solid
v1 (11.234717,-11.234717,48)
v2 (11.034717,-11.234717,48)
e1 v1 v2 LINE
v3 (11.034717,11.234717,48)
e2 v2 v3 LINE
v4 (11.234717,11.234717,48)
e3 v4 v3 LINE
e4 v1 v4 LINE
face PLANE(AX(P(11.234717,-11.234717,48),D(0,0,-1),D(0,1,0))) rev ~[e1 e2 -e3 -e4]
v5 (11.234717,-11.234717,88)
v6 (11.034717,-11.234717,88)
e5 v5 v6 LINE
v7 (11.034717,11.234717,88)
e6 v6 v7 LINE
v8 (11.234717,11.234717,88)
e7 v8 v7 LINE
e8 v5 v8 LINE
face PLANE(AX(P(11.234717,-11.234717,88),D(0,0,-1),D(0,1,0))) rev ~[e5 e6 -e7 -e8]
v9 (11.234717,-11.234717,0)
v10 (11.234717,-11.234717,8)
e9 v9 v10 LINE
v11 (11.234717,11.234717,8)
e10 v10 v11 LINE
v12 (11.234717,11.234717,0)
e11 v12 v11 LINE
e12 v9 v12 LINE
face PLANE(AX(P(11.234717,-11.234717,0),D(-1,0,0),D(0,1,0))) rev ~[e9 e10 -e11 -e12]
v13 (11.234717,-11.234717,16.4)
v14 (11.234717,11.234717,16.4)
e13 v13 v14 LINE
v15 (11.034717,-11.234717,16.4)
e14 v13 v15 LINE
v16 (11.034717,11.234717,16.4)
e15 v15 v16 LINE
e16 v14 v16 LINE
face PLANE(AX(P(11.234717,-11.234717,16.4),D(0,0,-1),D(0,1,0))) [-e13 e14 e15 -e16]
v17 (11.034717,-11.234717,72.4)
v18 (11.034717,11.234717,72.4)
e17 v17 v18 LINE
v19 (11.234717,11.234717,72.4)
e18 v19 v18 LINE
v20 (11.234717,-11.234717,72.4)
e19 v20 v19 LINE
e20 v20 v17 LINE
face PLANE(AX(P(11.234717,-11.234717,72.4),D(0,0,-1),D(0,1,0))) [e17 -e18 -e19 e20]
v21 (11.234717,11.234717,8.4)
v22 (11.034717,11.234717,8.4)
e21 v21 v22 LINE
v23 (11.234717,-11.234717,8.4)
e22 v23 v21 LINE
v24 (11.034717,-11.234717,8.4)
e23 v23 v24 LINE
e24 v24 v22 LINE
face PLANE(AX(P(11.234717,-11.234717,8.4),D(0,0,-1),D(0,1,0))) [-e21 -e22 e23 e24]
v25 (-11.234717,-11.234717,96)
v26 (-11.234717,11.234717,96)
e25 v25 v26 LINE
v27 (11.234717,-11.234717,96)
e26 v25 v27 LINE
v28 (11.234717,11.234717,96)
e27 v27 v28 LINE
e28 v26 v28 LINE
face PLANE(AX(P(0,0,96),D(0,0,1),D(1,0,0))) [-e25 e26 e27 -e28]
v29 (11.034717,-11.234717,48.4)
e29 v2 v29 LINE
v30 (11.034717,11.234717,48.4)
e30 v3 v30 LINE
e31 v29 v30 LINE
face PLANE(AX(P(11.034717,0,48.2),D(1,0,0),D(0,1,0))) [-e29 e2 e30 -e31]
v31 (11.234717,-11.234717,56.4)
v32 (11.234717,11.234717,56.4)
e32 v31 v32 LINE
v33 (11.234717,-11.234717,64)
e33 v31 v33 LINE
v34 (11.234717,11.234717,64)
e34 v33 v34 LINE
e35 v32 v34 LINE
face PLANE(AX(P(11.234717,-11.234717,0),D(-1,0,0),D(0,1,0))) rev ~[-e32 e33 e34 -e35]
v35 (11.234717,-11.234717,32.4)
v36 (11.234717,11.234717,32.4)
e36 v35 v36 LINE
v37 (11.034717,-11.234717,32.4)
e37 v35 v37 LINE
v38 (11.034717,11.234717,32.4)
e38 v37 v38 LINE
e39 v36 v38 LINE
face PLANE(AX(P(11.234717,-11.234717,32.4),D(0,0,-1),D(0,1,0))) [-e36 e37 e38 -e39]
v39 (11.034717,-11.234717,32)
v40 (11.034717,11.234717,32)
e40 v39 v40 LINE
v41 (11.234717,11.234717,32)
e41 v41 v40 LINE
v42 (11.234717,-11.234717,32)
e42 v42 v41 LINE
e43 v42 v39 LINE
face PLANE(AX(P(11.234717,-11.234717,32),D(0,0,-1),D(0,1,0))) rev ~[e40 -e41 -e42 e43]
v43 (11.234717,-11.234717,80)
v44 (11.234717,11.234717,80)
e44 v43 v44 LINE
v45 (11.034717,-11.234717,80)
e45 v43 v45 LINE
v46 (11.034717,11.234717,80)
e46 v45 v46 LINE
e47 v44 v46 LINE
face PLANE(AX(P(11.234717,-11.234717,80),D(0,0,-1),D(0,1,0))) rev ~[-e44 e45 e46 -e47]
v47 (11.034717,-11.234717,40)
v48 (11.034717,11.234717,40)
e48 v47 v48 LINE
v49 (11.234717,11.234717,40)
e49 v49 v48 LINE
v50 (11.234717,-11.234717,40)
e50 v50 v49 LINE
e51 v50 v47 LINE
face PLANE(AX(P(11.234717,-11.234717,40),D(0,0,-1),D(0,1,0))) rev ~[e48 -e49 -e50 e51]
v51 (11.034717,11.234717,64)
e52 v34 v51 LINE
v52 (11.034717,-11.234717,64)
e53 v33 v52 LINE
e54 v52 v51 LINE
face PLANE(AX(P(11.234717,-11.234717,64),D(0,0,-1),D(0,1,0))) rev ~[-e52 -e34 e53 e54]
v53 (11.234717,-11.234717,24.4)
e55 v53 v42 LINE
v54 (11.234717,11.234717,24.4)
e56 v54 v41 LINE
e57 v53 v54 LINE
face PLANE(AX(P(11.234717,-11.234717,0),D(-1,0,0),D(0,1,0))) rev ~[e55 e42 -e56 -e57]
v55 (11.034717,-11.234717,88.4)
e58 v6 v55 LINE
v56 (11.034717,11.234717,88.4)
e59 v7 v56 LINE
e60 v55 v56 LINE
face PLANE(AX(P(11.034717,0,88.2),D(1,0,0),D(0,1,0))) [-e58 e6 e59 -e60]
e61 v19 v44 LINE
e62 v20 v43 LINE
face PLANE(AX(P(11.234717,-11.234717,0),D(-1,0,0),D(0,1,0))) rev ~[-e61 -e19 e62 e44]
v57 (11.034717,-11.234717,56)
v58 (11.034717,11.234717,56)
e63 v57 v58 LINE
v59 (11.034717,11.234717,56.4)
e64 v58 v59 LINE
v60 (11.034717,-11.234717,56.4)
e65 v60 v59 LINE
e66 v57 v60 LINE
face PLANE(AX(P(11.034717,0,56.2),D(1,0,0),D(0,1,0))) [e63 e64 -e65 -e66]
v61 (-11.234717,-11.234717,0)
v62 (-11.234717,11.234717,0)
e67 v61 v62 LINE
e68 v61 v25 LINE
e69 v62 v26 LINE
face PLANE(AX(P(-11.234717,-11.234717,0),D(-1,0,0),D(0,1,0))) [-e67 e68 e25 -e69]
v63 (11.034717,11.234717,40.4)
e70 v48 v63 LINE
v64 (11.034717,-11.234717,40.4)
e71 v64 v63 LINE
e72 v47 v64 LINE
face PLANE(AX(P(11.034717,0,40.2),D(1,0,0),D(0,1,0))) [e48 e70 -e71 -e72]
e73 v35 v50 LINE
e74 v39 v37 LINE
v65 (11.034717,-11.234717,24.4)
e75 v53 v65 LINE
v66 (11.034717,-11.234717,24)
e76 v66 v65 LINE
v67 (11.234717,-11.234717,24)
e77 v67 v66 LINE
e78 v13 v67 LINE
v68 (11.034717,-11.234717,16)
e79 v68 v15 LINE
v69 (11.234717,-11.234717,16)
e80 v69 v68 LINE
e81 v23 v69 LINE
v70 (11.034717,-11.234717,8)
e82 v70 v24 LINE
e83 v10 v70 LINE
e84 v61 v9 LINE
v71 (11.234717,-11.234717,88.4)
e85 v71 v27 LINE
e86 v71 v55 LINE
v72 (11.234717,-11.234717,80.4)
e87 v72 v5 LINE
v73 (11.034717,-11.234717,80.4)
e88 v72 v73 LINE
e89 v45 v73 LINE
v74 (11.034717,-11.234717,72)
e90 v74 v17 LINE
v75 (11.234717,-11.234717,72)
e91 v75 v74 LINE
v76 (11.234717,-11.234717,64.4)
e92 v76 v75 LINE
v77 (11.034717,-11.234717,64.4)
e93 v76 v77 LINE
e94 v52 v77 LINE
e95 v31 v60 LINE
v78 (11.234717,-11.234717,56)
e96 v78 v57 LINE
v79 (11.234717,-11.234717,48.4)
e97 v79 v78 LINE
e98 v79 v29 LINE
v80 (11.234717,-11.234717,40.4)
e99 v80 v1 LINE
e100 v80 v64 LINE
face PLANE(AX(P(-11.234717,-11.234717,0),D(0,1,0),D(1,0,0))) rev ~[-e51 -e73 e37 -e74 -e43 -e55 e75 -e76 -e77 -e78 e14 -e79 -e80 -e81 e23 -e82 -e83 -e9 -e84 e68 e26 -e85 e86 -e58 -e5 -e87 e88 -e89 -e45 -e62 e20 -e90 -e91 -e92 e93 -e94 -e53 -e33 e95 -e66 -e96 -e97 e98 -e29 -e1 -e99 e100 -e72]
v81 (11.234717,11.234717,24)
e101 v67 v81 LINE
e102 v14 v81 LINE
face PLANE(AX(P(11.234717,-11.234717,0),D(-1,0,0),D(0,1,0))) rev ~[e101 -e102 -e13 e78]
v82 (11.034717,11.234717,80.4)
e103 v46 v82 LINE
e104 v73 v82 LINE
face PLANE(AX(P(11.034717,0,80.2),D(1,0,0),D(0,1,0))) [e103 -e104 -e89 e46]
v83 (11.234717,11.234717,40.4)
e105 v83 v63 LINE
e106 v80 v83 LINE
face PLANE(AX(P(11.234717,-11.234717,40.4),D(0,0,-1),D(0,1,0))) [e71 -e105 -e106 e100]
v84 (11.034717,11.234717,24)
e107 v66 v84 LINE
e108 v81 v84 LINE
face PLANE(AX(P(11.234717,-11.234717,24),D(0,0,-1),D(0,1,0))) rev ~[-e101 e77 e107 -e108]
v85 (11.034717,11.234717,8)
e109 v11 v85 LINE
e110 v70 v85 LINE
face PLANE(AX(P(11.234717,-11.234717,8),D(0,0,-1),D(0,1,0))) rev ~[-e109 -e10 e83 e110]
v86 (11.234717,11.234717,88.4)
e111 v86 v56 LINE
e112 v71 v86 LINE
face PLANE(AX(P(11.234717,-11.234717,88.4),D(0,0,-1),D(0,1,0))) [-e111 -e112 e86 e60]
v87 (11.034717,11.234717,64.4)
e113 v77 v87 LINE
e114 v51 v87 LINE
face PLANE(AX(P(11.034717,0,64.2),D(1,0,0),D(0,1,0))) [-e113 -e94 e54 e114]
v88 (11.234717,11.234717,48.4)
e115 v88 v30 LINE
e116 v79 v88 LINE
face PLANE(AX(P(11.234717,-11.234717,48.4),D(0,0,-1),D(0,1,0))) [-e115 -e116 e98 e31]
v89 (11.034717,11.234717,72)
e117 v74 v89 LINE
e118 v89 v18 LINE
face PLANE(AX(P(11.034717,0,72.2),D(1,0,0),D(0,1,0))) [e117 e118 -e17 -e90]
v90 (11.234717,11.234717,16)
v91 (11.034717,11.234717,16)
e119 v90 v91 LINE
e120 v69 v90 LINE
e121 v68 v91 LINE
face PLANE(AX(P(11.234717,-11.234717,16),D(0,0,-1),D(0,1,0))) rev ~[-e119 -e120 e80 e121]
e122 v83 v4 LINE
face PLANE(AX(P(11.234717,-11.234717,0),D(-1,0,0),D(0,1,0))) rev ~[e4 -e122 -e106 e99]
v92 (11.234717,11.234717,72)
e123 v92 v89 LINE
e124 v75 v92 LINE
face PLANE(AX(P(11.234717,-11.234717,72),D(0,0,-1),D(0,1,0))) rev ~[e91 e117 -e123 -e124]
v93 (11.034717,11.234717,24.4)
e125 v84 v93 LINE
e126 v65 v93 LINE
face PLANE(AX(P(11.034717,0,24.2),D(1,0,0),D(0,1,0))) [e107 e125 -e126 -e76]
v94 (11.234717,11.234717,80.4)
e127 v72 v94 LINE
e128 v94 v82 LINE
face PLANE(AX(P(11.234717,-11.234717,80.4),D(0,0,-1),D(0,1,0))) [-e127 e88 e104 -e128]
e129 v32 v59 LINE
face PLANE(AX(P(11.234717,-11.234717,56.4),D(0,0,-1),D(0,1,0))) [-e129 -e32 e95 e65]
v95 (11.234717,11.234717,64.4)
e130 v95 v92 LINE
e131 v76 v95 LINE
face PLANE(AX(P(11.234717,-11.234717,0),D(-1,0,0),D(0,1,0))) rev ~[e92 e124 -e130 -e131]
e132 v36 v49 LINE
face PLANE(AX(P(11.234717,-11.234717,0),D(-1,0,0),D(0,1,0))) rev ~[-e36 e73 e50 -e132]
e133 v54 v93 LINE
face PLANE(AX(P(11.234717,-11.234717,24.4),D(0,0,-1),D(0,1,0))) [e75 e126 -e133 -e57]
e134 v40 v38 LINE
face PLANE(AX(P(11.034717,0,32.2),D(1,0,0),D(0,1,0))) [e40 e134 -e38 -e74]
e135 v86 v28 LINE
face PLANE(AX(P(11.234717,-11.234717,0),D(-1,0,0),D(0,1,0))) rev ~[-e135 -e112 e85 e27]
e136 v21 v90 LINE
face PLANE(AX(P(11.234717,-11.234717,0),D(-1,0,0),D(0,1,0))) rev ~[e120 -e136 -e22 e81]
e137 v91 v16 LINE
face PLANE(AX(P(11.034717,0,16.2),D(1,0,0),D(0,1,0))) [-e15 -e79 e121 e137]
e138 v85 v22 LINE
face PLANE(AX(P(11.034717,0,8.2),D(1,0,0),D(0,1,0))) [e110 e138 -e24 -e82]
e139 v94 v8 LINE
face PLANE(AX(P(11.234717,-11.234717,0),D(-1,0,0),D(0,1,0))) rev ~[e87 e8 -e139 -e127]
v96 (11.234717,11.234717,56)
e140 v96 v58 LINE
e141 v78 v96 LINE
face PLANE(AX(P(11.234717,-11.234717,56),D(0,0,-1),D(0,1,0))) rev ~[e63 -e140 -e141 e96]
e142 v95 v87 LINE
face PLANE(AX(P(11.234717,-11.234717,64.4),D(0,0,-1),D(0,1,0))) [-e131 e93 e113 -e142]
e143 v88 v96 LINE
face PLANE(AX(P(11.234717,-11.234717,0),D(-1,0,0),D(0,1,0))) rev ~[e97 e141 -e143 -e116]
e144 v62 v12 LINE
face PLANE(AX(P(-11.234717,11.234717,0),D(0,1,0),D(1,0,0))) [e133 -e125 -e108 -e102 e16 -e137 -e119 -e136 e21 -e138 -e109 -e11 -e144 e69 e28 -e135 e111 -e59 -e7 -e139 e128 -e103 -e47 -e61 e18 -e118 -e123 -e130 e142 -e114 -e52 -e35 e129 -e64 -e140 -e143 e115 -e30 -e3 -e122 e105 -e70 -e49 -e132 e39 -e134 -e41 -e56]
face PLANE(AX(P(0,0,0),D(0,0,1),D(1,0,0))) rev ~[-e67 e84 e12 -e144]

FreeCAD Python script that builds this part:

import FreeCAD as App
import Part
import Sketcher
from FreeCAD import Vector


def add_polygon(sketch, points):
    """Adds a closed chain of lines whose ends are joined by coincident constraints."""
    first, n = sketch.GeometryCount, len(points)
    for a, b in zip(points, points[1:] + points[:1]):
        sketch.addGeometry(Part.LineSegment(App.Vector(*a, 0), App.Vector(*b, 0)), False)
    for i in range(n):
        sketch.addConstraint(Sketcher.Constraint("Coincident", first + i, 2, first + (i + 1) % n, 1))

doc = App.newDocument("Part")
body = doc.addObject("PartDesign::Body", "Body")

# Sketch on XY plane
sketch1 = body.newObject("Sketcher::SketchObject", "Sketch")
sketch1.AttachmentSupport = (doc.getObject("XY_Plane"), [""])
sketch1.MapMode = "FlatFace"
add_polygon(sketch1, [(-11.234717, 11.234717), (-11.234717, -11.234717), (11.234717, -11.234717), (11.234717, 11.234717)])  # lines 0-3
sketch1.addConstraint([
    Sketcher.Constraint("Vertical", 0),
    Sketcher.Constraint("Horizontal", 1),
    Sketcher.Constraint("Vertical", 2),
    Sketcher.Constraint("Horizontal", 3),
    Sketcher.Constraint("Symmetric", 0, 2, 2, 2, -1, 1),
    Sketcher.Constraint("Equal", 3, 0),
    Sketcher.Constraint("DistanceX", 1, 1, 1, 2, 22.469434),
])
pad1 = body.newObject("PartDesign::Pad", "Pad")
pad1.Profile = sketch1
pad1.Length = 96

# Sketch on YZ plane
sketch2 = body.newObject("Sketcher::SketchObject", "Sketch001")
sketch2.AttachmentSupport = (doc.getObject("YZ_Plane"), [""])
sketch2.MapMode = "FlatFace"
sketch2.AttachmentOffset = App.Placement(Vector(0, 0, 11.234717), App.Rotation())
add_polygon(sketch2, [(-11.234717, 88.4), (-11.234717, 88), (11.234717, 88), (11.234717, 88.4)])  # lines 0-3
add_polygon(sketch2, [(-11.234717, 80.4), (-11.234717, 80), (11.234717, 80), (11.234717, 80.4)])  # lines 4-7
add_polygon(sketch2, [(-11.234717, 72.4), (-11.234717, 72), (11.234717, 72), (11.234717, 72.4)])  # lines 8-11
add_polygon(sketch2, [(-11.234717, 64.4), (-11.234717, 64), (11.234717, 64), (11.234717, 64.4)])  # lines 12-15
add_polygon(sketch2, [(-11.234717, 56.4), (-11.234717, 56), (11.234717, 56), (11.234717, 56.4)])  # lines 16-19
add_polygon(sketch2, [(-11.234717, 48.4), (-11.234717, 48), (11.234717, 48), (11.234717, 48.4)])  # lines 20-23
add_polygon(sketch2, [(-11.234717, 40.4), (-11.234717, 40), (11.234717, 40), (11.234717, 40.4)])  # lines 24-27
add_polygon(sketch2, [(-11.234717, 32.4), (-11.234717, 32), (11.234717, 32), (11.234717, 32.4)])  # lines 28-31
add_polygon(sketch2, [(-11.234717, 24.4), (-11.234717, 24), (11.234717, 24), (11.234717, 24.4)])  # lines 32-35
add_polygon(sketch2, [(-11.234717, 16.4), (-11.234717, 16), (11.234717, 16), (11.234717, 16.4)])  # lines 36-39
add_polygon(sketch2, [(-11.234717, 8.4), (-11.234717, 8), (11.234717, 8), (11.234717, 8.4)])  # lines 40-43
sketch2.addConstraint([
    Sketcher.Constraint("Vertical", 0),
    Sketcher.Constraint("Horizontal", 1),
    Sketcher.Constraint("Vertical", 2),
    Sketcher.Constraint("Horizontal", 3),
    Sketcher.Constraint("Vertical", 4),
    Sketcher.Constraint("Horizontal", 5),
    Sketcher.Constraint("Vertical", 6),
    Sketcher.Constraint("Horizontal", 7),
    Sketcher.Constraint("Vertical", 8),
    Sketcher.Constraint("Horizontal", 9),
    Sketcher.Constraint("Vertical", 10),
    Sketcher.Constraint("Horizontal", 11),
    Sketcher.Constraint("Vertical", 12),
    Sketcher.Constraint("Horizontal", 13),
    Sketcher.Constraint("Vertical", 14),
    Sketcher.Constraint("Horizontal", 15),
    Sketcher.Constraint("Vertical", 16),
    Sketcher.Constraint("Horizontal", 17),
    Sketcher.Constraint("Vertical", 18),
    Sketcher.Constraint("Horizontal", 19),
    Sketcher.Constraint("Vertical", 20),
    Sketcher.Constraint("Horizontal", 21),
    Sketcher.Constraint("Vertical", 22),
    Sketcher.Constraint("Horizontal", 23),
    Sketcher.Constraint("Vertical", 24),
    Sketcher.Constraint("Horizontal", 25),
    Sketcher.Constraint("Vertical", 26),
    Sketcher.Constraint("Horizontal", 27),
    Sketcher.Constraint("Vertical", 28),
    Sketcher.Constraint("Horizontal", 29),
    Sketcher.Constraint("Vertical", 30),
    Sketcher.Constraint("Horizontal", 31),
    Sketcher.Constraint("Vertical", 32),
    Sketcher.Constraint("Horizontal", 33),
    Sketcher.Constraint("Vertical", 34),
    Sketcher.Constraint("Horizontal", 35),
    Sketcher.Constraint("Vertical", 36),
    Sketcher.Constraint("Horizontal", 37),
    Sketcher.Constraint("Vertical", 38),
    Sketcher.Constraint("Horizontal", 39),
    Sketcher.Constraint("Vertical", 40),
    Sketcher.Constraint("Horizontal", 41),
    Sketcher.Constraint("Vertical", 42),
    Sketcher.Constraint("Horizontal", 43),
    Sketcher.Constraint("Vertical", 3, 2, 4, 2),
    Sketcher.Constraint("Vertical", 2, 2, 5, 2),
    Sketcher.Constraint("Vertical", 7, 2, 8, 2),
    Sketcher.Constraint("Vertical", 6, 2, 9, 2),
    Sketcher.Constraint("Vertical", 11, 2, 12, 2),
    Sketcher.Constraint("Vertical", 10, 2, 13, 2),
    Sketcher.Constraint("Vertical", 15, 2, 16, 2),
    Sketcher.Constraint("Vertical", 14, 2, 17, 2),
    Sketcher.Constraint("Vertical", 19, 2, 20, 2),
    Sketcher.Constraint("Vertical", 18, 2, 21, 2),
    Sketcher.Constraint("Vertical", 23, 2, 24, 2),
    Sketcher.Constraint("Vertical", 22, 2, 25, 2),
    Sketcher.Constraint("Vertical", 27, 2, 28, 2),
    Sketcher.Constraint("Vertical", 26, 2, 29, 2),
    Sketcher.Constraint("Vertical", 31, 2, 32, 2),
    Sketcher.Constraint("Vertical", 30, 2, 33, 2),
    Sketcher.Constraint("Vertical", 35, 2, 36, 2),
    Sketcher.Constraint("Vertical", 34, 2, 37, 2),
    Sketcher.Constraint("Vertical", 39, 2, 40, 2),
    Sketcher.Constraint("Vertical", 38, 2, 41, 2),
    Sketcher.Constraint("Equal", 2, 4),
    Sketcher.Constraint("Equal", 6, 8),
    Sketcher.Constraint("Equal", 10, 12),
    Sketcher.Constraint("Equal", 14, 16),
    Sketcher.Constraint("Equal", 18, 20),
    Sketcher.Constraint("Equal", 22, 24),
    Sketcher.Constraint("Equal", 26, 28),
    Sketcher.Constraint("Equal", 30, 32),
    Sketcher.Constraint("Equal", 34, 36),
    Sketcher.Constraint("Equal", 38, 40),
    Sketcher.Constraint("DistanceY", 0, 2, 0, 1, 0.4),
    Sketcher.Constraint("DistanceY", -1, 1, 0, 2, 88.0),
    Sketcher.Constraint("DistanceY", -1, 1, 4, 2, 80.0),
    Sketcher.Constraint("DistanceY", -1, 1, 8, 2, 72.0),
    Sketcher.Constraint("DistanceY", -1, 1, 12, 2, 64.0),
    Sketcher.Constraint("DistanceY", -1, 1, 16, 2, 56.0),
    Sketcher.Constraint("DistanceY", -1, 1, 20, 2, 48.0),
    Sketcher.Constraint("DistanceY", -1, 1, 24, 2, 40.0),
    Sketcher.Constraint("DistanceY", -1, 1, 28, 2, 32.0),
    Sketcher.Constraint("DistanceY", -1, 1, 32, 2, 24.0),
    Sketcher.Constraint("DistanceY", -1, 1, 36, 2, 16.0),
    Sketcher.Constraint("DistanceY", -1, 1, 40, 2, 8.0),
    Sketcher.Constraint("DistanceX", 1, 1, 1, 2, 22.469434),
    Sketcher.Constraint("DistanceX", 0, 2, -1, 1, 11.234717),
])
pocket1 = body.newObject("PartDesign::Pocket", "Pocket")
pocket1.Profile = sketch2
pocket1.Length = 0.2

doc.recompute()
